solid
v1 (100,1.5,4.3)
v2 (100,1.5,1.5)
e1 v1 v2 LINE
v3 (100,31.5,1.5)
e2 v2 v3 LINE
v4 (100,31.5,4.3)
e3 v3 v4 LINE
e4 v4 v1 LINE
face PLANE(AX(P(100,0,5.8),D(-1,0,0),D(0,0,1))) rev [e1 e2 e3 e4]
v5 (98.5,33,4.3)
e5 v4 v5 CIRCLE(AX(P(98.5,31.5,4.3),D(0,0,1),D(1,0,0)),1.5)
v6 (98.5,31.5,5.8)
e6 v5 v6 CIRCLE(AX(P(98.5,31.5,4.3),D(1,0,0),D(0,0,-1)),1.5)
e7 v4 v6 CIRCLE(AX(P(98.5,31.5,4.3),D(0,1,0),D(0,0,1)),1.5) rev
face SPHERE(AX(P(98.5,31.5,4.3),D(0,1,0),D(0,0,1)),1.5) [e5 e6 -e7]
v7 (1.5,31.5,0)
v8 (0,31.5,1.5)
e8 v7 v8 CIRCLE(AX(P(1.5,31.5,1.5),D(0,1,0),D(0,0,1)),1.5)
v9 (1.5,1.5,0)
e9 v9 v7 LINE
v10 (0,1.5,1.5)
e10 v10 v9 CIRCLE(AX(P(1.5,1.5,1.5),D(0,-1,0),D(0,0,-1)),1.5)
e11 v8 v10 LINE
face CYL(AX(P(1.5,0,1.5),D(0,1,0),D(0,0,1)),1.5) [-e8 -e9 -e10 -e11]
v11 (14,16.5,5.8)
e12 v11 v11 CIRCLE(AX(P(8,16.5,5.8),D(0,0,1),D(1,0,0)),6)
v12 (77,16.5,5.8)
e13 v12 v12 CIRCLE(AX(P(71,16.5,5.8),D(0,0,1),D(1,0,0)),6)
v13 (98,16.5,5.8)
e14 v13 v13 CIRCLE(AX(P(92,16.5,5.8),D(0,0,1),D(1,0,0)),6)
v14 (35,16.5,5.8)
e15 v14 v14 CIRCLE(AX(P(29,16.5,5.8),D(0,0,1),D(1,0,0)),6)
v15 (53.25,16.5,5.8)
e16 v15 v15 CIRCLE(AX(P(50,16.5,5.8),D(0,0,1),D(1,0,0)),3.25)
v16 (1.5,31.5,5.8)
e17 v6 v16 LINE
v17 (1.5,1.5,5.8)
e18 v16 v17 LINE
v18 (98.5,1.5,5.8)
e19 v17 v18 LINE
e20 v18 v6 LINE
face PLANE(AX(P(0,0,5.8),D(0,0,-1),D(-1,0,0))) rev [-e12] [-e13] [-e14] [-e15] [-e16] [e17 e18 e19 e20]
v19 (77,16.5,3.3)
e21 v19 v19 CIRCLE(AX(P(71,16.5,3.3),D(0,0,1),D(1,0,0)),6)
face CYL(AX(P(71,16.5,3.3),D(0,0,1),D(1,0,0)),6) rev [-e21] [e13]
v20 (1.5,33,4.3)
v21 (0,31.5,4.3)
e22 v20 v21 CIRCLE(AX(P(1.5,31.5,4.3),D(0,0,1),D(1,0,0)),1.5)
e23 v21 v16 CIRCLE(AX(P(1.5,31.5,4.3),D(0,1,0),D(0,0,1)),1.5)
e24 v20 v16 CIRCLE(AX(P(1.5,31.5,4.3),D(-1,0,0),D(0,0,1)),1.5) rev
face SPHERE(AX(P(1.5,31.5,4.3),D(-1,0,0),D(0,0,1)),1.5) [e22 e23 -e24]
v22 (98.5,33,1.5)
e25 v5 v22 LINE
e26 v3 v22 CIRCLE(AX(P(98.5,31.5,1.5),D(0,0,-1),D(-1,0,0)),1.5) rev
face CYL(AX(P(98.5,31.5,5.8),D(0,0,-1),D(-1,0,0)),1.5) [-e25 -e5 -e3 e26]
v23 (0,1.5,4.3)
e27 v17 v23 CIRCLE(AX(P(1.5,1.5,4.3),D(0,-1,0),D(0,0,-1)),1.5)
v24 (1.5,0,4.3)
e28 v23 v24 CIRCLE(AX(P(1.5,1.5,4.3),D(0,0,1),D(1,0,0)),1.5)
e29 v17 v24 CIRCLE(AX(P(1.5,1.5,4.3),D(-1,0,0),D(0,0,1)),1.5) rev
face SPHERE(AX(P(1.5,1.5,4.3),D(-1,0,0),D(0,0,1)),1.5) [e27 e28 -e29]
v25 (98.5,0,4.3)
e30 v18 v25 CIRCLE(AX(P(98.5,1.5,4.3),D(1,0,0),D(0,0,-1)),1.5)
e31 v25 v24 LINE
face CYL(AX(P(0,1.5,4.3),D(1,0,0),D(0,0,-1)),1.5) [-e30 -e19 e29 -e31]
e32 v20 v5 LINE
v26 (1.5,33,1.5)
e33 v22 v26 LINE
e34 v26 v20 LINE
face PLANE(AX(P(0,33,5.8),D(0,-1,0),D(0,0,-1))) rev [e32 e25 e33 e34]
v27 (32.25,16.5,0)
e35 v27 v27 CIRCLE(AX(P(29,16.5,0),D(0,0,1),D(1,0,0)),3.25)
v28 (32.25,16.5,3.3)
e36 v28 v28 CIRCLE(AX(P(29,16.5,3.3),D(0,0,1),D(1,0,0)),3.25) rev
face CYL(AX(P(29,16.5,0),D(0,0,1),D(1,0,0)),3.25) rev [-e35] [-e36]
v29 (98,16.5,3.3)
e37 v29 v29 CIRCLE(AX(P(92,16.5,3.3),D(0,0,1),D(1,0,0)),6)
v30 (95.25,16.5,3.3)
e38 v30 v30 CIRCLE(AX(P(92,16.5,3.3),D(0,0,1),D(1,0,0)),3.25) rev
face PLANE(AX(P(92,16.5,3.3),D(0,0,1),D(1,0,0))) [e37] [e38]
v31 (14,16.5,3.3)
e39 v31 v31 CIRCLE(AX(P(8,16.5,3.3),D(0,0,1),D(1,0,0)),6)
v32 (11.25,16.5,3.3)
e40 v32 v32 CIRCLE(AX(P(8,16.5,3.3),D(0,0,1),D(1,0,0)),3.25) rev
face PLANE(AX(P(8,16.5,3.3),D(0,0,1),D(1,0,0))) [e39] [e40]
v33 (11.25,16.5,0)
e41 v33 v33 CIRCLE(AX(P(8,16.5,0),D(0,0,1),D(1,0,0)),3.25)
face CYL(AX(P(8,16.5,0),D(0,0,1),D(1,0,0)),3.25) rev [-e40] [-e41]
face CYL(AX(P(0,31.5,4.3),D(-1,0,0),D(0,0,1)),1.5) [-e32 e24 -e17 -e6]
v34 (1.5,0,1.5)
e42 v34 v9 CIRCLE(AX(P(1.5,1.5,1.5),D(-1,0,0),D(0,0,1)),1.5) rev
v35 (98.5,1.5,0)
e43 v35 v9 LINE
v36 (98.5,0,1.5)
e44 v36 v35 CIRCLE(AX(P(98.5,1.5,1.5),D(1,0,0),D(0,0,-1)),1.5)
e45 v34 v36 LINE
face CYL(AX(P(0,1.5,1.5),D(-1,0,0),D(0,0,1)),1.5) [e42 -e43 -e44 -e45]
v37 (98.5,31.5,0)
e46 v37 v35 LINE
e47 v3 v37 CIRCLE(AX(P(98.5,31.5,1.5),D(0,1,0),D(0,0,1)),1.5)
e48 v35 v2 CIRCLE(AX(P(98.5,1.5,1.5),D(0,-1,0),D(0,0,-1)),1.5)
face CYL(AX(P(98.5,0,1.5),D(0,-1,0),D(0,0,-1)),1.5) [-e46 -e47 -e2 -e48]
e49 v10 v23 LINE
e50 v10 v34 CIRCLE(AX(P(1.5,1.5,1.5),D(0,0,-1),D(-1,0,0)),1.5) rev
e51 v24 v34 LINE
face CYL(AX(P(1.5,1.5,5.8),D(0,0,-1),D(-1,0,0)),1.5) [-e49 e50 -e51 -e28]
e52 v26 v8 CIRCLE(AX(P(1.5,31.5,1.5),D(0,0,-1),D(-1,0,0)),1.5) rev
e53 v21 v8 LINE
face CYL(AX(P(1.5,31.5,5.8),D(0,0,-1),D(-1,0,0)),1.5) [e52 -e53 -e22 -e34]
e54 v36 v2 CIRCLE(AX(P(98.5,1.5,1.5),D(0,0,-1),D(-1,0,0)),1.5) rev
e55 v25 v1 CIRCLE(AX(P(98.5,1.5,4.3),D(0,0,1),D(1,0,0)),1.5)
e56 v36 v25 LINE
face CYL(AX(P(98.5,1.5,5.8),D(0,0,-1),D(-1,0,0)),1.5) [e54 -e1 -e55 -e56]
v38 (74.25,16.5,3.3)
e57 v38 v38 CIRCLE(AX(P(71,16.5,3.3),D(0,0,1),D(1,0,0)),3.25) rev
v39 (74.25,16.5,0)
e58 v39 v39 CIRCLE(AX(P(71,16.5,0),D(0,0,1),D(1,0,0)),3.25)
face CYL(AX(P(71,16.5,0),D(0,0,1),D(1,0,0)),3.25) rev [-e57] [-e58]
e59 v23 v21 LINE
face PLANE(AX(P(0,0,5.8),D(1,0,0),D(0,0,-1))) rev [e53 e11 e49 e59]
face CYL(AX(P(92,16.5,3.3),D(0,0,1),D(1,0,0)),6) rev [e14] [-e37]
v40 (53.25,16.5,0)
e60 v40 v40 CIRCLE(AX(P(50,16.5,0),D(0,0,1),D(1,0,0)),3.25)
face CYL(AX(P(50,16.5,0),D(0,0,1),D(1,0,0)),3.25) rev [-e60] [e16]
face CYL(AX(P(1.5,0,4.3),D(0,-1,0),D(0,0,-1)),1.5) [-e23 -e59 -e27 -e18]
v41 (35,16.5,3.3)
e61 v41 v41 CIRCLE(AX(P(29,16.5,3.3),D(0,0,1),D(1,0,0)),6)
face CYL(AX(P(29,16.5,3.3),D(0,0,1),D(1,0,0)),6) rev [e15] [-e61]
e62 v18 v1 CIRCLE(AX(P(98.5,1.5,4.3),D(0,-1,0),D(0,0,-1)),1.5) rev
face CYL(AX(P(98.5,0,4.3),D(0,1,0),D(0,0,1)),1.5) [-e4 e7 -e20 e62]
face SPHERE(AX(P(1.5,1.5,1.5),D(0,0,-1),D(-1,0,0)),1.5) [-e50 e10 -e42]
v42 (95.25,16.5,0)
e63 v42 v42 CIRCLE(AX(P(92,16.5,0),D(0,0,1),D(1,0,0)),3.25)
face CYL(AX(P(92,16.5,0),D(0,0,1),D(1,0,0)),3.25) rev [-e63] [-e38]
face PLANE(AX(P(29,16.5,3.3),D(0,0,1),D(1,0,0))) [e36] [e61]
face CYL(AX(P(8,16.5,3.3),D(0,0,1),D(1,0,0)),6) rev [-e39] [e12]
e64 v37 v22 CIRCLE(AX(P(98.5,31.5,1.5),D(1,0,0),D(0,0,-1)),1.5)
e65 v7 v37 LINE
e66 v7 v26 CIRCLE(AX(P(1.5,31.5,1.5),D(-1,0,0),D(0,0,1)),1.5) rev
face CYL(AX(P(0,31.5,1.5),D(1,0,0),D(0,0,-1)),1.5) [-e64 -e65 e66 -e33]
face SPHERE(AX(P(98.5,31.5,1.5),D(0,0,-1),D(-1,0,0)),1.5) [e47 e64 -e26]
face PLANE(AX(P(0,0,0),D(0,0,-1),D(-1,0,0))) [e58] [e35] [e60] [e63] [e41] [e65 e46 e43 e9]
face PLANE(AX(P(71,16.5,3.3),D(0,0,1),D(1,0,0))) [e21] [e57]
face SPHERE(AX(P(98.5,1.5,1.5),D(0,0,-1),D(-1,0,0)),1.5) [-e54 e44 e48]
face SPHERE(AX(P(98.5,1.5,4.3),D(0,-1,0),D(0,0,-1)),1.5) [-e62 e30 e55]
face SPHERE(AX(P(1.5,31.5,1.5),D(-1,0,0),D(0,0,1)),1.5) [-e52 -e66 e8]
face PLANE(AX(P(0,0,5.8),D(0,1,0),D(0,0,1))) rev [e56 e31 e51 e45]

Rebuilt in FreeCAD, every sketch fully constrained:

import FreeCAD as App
import Part
import Sketcher

V = App.Vector
Q = App.Units.Quantity


def edges_at(feature, points):
    """Names of the edges that pass closest to the given points."""
    edges = feature.Shape.Edges
    near = lambda p: min(range(len(edges)), key=lambda i: edges[i].distToShape(Part.Vertex(*p))[0])
    return sorted({f"Edge{near(p) + 1}" for p in points})


def add_polygon(sketch, points):
    """Adds a closed chain of lines whose ends are joined by coincident constraints."""
    first, n = sketch.GeometryCount, len(points)
    for a, b in zip(points, points[1:] + points[:1]):
        sketch.addGeometry(Part.LineSegment(App.Vector(*a, 0), App.Vector(*b, 0)), False)
    for i in range(n):
        sketch.addConstraint(Sketcher.Constraint("Coincident", first + i, 2, first + (i + 1) % n, 1))

doc = App.newDocument("Part")
body = doc.addObject("PartDesign::Body", "Body")

sketch1 = body.newObject("Sketcher::SketchObject", "Sketch")
sketch1.AttachmentSupport = (doc.getObject("XY_Plane"), [""])
sketch1.MapMode = "FlatFace"
add_polygon(sketch1, [(0, 33), (0, 0), (100, 0), (100, 33)])
sketch1.addConstraint([
    Sketcher.Constraint("Vertical", 0),
    Sketcher.Constraint("Horizontal", 1),
    Sketcher.Constraint("Vertical", 2),
    Sketcher.Constraint("Horizontal", 3),
    Sketcher.Constraint("Coincident", 0, 2, -1, 1),
    Sketcher.Constraint("DistanceX", 1, 1, 1, 2, Q("100 mm")),
    Sketcher.Constraint("DistanceY", 0, 2, 0, 1, Q("33 mm")),
])
pad1 = body.newObject("PartDesign::Pad", "Pad")
pad1.Profile = sketch1
pad1.Length = 5.8

sketch2 = body.newObject("Sketcher::SketchObject", "Sketch001")
sketch2.AttachmentSupport = (doc.getObject("XY_Plane"), [""])
sketch2.MapMode = "FlatFace"
sketch2.AttachmentOffset = App.Placement(V(0, 0, 5.8), App.Rotation())
sketch2.addGeometry([
    Part.Circle(V(8, 16.5, 0), V(0, 0, 1), 3.2),
    Part.Circle(V(29, 16.5, 0), V(0, 0, 1), 3.2),
    Part.Circle(V(50, 16.5, 0), V(0, 0, 1), 3.2),
    Part.Circle(V(71, 16.5, 0), V(0, 0, 1), 3.2),
    Part.Circle(V(92, 16.5, 0), V(0, 0, 1), 3.2),
], False)
sketch2.addConstraint([
    Sketcher.Constraint("Equal", 0, 1),
    Sketcher.Constraint("Equal", 1, 2),
    Sketcher.Constraint("Equal", 2, 3),
    Sketcher.Constraint("Equal", 3, 4),
    Sketcher.Constraint("Horizontal", 0, 3, 1, 3),
    Sketcher.Constraint("Horizontal", 1, 3, 2, 3),
    Sketcher.Constraint("Horizontal", 2, 3, 3, 3),
    Sketcher.Constraint("Horizontal", 3, 3, 4, 3),
    Sketcher.Constraint("Diameter", 0, Q("6.5 mm")),
    Sketcher.Constraint("DistanceX", -1, 1, 0, 3, Q("8 mm")),
    Sketcher.Constraint("DistanceX", -1, 1, 1, 3, Q("29 mm")),
    Sketcher.Constraint("DistanceX", -1, 1, 2, 3, Q("50 mm")),
    Sketcher.Constraint("DistanceX", -1, 1, 3, 3, Q("71 mm")),
    Sketcher.Constraint("DistanceX", -1, 1, 4, 3, Q("92 mm")),
    Sketcher.Constraint("DistanceY", -1, 1, 0, 3, Q("16.5 mm")),
])
pocket1 = body.newObject("PartDesign::Pocket", "Pocket")
pocket1.Profile = sketch2
pocket1.Type = "ThroughAll"

sketch3 = body.newObject("Sketcher::SketchObject", "Sketch002")
sketch3.AttachmentSupport = (doc.getObject("XY_Plane"), [""])
sketch3.MapMode = "FlatFace"
sketch3.AttachmentOffset = App.Placement(V(0, 0, 5.8), App.Rotation())
sketch3.addGeometry([
    Part.Circle(V(8, 16, 0), V(0, 0, 1), 6),
    Part.Circle(V(29, 16, 0), V(0, 0, 1), 6),
    Part.Circle(V(71, 16, 0), V(0, 0, 1), 6),
    Part.Circle(V(92, 16, 0), V(0, 0, 1), 6),
], False)
sketch3.addConstraint([
    Sketcher.Constraint("Equal", 0, 1),
    Sketcher.Constraint("Equal", 1, 2),
    Sketcher.Constraint("Equal", 2, 3),
    Sketcher.Constraint("Horizontal", 0, 3, 1, 3),
    Sketcher.Constraint("Horizontal", 1, 3, 2, 3),
    Sketcher.Constraint("Horizontal", 2, 3, 3, 3),
    Sketcher.Constraint("Diameter", 0, Q("12 mm")),
    Sketcher.Constraint("DistanceX", -1, 1, 0, 3, Q("8 mm")),
    Sketcher.Constraint("DistanceX", -1, 1, 1, 3, Q("29 mm")),
    Sketcher.Constraint("DistanceX", -1, 1, 2, 3, Q("71 mm")),
    Sketcher.Constraint("DistanceX", -1, 1, 3, 3, Q("92 mm")),
    Sketcher.Constraint("DistanceY", -1, 1, 0, 3, Q("16.5 mm")),
])
pocket2 = body.newObject("PartDesign::Pocket", "Pocket001")
pocket2.Profile = sketch3
pocket2.Length = 2.5
doc.recompute()

fillet = body.newObject("PartDesign::Fillet", "Fillet")
fillet.Base = (pocket2, edges_at(pocket2, [
    (100, 16.5, 5.8),
    (50, 33, 5.8),
    (0, 16.5, 5.8),
    (50, 33, 0),
    (100, 16.5, 0),
    (50, 0, 0),
    (0, 16.5, 0),
    (0, 33, 2.9),
    (100, 33, 2.9),
    (100, 0, 2.9),
    (0, 0, 2.9),
    (50, 0, 5.8),
]))
fillet.Radius = 1.5

doc.recompute()
